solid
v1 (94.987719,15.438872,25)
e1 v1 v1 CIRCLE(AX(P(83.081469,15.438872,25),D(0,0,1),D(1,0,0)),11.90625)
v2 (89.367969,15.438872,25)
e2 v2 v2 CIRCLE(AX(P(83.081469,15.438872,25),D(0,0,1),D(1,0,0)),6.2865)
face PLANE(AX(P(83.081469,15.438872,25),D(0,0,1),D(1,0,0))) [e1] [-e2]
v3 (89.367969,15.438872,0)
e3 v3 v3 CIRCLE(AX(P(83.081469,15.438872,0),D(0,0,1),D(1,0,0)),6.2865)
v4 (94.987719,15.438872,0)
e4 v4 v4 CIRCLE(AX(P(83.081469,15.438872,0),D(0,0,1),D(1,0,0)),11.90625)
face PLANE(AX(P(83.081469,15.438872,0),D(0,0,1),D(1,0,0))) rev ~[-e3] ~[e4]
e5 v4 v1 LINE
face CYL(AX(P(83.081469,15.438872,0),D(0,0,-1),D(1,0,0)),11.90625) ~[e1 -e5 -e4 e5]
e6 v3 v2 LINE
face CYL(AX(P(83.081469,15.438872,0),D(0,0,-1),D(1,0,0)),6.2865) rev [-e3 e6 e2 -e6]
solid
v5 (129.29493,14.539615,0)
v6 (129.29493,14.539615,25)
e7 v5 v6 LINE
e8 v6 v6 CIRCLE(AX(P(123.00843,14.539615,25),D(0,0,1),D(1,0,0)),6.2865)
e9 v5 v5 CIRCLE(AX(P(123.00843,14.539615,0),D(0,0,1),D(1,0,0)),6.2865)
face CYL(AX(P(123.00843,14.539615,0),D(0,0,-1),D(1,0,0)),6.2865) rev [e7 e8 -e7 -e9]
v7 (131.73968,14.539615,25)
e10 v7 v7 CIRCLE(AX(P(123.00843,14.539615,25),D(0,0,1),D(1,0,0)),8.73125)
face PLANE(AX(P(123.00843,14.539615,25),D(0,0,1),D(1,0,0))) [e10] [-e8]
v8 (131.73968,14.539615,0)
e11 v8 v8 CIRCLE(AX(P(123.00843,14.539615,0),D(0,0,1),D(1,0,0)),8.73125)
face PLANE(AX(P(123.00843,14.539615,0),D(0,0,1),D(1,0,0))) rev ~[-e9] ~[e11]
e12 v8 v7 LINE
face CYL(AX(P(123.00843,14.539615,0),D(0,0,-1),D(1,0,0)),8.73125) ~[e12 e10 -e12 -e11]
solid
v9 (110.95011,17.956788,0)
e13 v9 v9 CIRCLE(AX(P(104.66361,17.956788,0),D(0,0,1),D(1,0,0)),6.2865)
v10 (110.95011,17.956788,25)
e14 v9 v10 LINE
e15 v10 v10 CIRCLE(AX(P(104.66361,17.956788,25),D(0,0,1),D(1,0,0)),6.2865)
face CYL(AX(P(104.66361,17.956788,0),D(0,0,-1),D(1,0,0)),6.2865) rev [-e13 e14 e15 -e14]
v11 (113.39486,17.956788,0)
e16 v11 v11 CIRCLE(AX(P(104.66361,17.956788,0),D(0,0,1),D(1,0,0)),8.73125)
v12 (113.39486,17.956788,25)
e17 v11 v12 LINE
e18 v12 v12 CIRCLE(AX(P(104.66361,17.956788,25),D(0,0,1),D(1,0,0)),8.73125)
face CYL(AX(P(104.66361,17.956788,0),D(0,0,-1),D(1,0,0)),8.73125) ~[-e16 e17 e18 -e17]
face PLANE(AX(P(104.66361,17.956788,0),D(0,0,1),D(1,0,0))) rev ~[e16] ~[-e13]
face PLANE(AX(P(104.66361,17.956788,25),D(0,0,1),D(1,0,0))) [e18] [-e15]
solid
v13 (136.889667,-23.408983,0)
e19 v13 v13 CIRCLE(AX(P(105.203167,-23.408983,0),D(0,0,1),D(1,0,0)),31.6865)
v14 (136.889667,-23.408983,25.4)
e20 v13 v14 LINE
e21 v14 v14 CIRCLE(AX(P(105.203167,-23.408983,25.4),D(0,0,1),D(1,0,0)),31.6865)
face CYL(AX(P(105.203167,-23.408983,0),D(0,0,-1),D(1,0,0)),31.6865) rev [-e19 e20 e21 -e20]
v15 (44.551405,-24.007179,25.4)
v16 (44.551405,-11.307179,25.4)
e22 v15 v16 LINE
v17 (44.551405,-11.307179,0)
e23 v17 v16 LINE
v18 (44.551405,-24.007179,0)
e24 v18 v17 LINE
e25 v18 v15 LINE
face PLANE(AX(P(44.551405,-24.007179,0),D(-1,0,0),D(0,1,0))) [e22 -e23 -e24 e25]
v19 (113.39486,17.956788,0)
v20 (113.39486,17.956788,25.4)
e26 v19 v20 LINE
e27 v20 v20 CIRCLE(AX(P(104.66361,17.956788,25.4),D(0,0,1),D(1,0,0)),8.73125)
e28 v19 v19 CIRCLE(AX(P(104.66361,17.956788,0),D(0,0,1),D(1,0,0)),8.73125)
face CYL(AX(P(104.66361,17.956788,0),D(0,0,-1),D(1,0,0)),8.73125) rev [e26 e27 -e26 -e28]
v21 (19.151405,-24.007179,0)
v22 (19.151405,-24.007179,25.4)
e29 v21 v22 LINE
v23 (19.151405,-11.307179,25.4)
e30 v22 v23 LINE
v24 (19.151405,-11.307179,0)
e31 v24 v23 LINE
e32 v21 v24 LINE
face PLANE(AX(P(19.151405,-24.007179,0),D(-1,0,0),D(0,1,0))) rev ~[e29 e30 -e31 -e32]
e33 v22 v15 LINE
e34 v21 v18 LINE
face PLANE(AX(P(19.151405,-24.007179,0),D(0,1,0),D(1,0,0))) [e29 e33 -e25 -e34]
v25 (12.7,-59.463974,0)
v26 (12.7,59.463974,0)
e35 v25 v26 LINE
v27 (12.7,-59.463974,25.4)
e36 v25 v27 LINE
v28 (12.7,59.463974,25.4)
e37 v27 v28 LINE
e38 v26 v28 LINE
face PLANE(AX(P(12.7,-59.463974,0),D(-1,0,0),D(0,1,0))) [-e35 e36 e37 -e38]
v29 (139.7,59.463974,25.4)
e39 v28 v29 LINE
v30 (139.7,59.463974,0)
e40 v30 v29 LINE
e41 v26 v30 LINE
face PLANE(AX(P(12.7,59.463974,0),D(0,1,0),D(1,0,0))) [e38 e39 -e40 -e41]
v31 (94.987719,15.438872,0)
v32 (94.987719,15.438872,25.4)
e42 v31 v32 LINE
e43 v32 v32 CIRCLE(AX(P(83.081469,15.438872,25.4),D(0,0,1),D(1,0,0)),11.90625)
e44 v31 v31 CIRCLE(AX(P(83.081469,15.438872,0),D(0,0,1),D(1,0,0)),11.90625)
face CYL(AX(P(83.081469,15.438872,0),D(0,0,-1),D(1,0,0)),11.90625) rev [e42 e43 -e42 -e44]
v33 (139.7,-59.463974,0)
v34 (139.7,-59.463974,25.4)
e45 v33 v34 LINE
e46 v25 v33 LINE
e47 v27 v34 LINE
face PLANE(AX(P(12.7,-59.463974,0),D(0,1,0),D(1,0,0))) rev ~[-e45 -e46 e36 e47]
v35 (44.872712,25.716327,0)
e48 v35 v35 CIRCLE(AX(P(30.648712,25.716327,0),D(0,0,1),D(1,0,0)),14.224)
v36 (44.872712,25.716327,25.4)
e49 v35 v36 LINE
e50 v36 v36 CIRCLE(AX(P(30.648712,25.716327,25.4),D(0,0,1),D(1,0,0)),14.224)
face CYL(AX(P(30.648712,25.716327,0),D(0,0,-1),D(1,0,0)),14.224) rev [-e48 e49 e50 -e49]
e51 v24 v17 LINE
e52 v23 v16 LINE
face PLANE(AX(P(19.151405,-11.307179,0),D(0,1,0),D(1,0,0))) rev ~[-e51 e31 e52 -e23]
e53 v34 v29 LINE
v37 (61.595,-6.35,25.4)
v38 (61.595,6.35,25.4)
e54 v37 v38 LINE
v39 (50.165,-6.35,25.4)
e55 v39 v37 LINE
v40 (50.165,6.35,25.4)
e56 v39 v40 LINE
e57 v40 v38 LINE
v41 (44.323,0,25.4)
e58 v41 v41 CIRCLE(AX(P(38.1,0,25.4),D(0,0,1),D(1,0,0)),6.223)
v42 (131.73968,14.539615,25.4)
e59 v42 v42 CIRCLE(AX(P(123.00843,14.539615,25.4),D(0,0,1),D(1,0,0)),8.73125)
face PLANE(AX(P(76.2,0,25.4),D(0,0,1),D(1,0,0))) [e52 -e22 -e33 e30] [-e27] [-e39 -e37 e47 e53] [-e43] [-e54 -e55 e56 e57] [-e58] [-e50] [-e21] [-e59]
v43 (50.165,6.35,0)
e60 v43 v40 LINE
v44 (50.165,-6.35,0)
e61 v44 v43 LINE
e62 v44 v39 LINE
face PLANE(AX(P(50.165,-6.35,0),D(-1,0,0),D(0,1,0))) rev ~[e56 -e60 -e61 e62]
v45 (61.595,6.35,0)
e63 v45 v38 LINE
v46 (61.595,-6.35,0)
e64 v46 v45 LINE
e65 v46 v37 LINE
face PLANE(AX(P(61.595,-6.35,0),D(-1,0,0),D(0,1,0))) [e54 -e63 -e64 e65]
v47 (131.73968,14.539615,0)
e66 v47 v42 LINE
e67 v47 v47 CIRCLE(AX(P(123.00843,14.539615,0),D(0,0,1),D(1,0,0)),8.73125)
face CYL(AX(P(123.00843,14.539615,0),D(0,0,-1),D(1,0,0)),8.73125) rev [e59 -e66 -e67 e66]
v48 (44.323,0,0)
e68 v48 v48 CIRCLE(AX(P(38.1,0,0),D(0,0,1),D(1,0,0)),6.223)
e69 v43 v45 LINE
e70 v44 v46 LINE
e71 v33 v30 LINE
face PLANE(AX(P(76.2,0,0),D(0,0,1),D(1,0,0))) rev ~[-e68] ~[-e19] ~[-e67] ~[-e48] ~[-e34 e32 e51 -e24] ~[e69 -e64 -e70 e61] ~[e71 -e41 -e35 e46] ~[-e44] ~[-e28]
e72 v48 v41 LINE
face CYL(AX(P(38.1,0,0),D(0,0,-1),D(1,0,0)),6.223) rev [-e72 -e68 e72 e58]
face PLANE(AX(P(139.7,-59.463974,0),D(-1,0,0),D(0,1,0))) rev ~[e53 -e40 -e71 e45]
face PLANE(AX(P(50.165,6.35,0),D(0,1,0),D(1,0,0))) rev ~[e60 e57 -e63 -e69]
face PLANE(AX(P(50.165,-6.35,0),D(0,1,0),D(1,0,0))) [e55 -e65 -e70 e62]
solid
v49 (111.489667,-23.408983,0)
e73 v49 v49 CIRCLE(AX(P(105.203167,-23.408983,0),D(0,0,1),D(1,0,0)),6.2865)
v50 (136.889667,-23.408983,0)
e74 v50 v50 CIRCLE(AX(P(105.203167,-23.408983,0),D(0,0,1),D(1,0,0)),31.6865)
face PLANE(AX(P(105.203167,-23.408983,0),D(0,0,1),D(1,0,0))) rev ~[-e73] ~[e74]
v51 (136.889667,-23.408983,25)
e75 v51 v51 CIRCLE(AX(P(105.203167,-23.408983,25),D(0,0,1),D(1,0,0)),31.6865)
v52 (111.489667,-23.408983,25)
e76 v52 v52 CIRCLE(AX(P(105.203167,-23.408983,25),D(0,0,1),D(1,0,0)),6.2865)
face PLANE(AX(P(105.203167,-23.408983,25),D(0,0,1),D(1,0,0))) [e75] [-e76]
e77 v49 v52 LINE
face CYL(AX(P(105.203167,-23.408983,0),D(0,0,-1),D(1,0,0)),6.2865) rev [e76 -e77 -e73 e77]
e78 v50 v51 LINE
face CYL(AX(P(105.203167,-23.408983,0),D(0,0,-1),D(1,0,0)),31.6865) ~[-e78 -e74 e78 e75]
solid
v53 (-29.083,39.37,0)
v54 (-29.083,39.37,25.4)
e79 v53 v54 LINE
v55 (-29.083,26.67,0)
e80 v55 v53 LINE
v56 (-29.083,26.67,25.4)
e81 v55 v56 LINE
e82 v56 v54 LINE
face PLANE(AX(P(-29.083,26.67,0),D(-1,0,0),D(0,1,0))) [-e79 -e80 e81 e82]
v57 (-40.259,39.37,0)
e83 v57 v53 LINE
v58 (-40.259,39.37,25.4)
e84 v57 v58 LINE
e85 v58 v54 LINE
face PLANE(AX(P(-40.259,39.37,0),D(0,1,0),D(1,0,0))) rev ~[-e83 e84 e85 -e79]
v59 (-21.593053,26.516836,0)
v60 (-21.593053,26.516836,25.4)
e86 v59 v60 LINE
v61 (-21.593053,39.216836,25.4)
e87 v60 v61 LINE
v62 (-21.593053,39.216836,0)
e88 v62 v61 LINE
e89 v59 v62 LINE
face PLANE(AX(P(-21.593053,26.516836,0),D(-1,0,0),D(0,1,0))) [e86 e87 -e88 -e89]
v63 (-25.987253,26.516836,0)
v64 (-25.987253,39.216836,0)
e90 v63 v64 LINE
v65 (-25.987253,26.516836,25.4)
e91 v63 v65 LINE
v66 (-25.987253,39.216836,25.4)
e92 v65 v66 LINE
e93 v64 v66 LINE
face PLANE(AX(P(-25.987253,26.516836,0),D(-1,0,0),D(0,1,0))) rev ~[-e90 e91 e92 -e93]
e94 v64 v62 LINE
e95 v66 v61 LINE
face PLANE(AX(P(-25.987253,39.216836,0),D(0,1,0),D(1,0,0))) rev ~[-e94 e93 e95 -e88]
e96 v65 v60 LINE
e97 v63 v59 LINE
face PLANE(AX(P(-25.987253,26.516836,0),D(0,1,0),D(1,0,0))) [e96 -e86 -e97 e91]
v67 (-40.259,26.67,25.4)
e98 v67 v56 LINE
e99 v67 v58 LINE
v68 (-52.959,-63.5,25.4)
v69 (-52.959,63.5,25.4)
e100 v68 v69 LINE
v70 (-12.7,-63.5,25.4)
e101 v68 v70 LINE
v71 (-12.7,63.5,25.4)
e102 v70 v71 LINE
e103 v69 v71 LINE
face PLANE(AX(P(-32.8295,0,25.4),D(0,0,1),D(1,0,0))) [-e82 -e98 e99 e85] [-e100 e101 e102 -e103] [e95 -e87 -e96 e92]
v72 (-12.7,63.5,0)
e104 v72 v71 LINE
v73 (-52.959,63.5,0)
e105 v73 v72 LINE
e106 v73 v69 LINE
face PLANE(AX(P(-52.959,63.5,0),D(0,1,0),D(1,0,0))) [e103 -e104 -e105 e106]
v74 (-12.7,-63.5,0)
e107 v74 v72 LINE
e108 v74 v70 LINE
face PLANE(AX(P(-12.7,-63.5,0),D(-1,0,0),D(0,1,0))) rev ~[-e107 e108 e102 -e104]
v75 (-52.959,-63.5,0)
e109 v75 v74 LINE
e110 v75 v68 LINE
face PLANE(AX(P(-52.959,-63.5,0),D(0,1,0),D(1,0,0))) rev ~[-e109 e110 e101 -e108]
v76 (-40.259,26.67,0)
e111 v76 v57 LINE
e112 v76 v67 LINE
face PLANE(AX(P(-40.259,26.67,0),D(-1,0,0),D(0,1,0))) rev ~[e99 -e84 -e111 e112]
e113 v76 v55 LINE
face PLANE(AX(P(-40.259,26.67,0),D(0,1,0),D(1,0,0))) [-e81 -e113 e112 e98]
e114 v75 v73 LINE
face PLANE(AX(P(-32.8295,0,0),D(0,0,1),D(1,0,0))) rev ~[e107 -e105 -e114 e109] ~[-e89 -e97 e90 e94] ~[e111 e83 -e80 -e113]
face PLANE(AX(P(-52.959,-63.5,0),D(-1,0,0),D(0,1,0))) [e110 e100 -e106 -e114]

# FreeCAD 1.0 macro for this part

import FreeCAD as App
import Part
import Sketcher

V = App.Vector
Q = App.Units.Quantity

doc = App.newDocument("Part")
body = doc.addObject("PartDesign::Body", "Body")
body.AllowCompound = True

# Sketch on XY plane
sketch1 = doc.addObject("Sketcher::SketchObject", "Sketch")
body.addObject(sketch1)
sketch1.AttachmentSupport = (doc.XY_Plane, [""])
sketch1.MapMode = "FlatFace"
sketch1.addGeometry([
    Part.LineSegment(V(-53, 63.5, 0), V(-53, -63.5, 0)),  # 0
    Part.LineSegment(V(-53, -63.5, 0), V(-12.7, -63.5, 0)),  # 1
    Part.LineSegment(V(-12.7, -63.5, 0), V(-12.7, 63.5, 0)),  # 2
    Part.LineSegment(V(-12.7, 63.5, 0), V(-53, 63.5, 0)),  # 3
    Part.LineSegment(V(-21.6, 26.5, 0), V(-26, 26.5, 0)),  # 4
    Part.LineSegment(V(-26, 26.5, 0), V(-26, 39.2, 0)),  # 5
    Part.LineSegment(V(-26, 39.2, 0), V(-21.6, 39.2, 0)),  # 6
    Part.LineSegment(V(-21.6, 39.2, 0), V(-21.6, 26.5, 0)),  # 7
    Part.LineSegment(V(-29.1, 26.7, 0), V(-40.3, 26.7, 0)),  # 8
    Part.LineSegment(V(-40.3, 26.7, 0), V(-40.3, 39.4, 0)),  # 9
    Part.LineSegment(V(-40.3, 39.4, 0), V(-29.1, 39.4, 0)),  # 10
    Part.LineSegment(V(-29.1, 39.4, 0), V(-29.1, 26.7, 0)),  # 11
    Part.LineSegment(V(12.7, 59.5, 0), V(12.7, -59.5, 0)),  # 12
    Part.LineSegment(V(12.7, -59.5, 0), V(139.7, -59.5, 0)),  # 13
    Part.LineSegment(V(139.7, -59.5, 0), V(139.7, 59.5, 0)),  # 14
    Part.LineSegment(V(139.7, 59.5, 0), V(12.7, 59.5, 0)),  # 15
    Part.LineSegment(V(44.6, -24, 0), V(19.2, -24, 0)),  # 16
    Part.LineSegment(V(19.2, -24, 0), V(19.2, -11.3, 0)),  # 17
    Part.LineSegment(V(19.2, -11.3, 0), V(44.6, -11.3, 0)),  # 18
    Part.LineSegment(V(44.6, -11.3, 0), V(44.6, -24, 0)),  # 19
    Part.Circle(V(105.2, -23.4, 0), V(0, 0, 1), 31.7),  # 20
    Part.Circle(V(38.1, 0, 0), V(0, 0, 1), 6.2),  # 21
    Part.LineSegment(V(61.6, -6.3, 0), V(50.2, -6.3, 0)),  # 22
    Part.LineSegment(V(50.2, -6.3, 0), V(50.2, 6.3, 0)),  # 23
    Part.LineSegment(V(50.2, 6.3, 0), V(61.6, 6.3, 0)),  # 24
    Part.LineSegment(V(61.6, 6.3, 0), V(61.6, -6.3, 0)),  # 25
    Part.Circle(V(30.6, 25.7, 0), V(0, 0, 1), 14.2),  # 26
    Part.Circle(V(83.1, 15.4, 0), V(0, 0, 1), 11.9),  # 27
    Part.Circle(V(123, 14.5, 0), V(0, 0, 1), 8.7),  # 28
    Part.Circle(V(104.7, 18, 0), V(0, 0, 1), 8.7),  # 29
], False)
sketch1.addConstraint([
    Sketcher.Constraint("Coincident", 0, 2, 1, 1),
    Sketcher.Constraint("Coincident", 1, 2, 2, 1),
    Sketcher.Constraint("Coincident", 2, 2, 3, 1),
    Sketcher.Constraint("Coincident", 3, 2, 0, 1),
    Sketcher.Constraint("Coincident", 4, 2, 5, 1),
    Sketcher.Constraint("Coincident", 5, 2, 6, 1),
    Sketcher.Constraint("Coincident", 6, 2, 7, 1),
    Sketcher.Constraint("Coincident", 7, 2, 4, 1),
    Sketcher.Constraint("Coincident", 8, 2, 9, 1),
    Sketcher.Constraint("Coincident", 9, 2, 10, 1),
    Sketcher.Constraint("Coincident", 10, 2, 11, 1),
    Sketcher.Constraint("Coincident", 11, 2, 8, 1),
    Sketcher.Constraint("Coincident", 12, 2, 13, 1),
    Sketcher.Constraint("Coincident", 13, 2, 14, 1),
    Sketcher.Constraint("Coincident", 14, 2, 15, 1),
    Sketcher.Constraint("Coincident", 15, 2, 12, 1),
    Sketcher.Constraint("Coincident", 16, 2, 17, 1),
    Sketcher.Constraint("Coincident", 17, 2, 18, 1),
    Sketcher.Constraint("Coincident", 18, 2, 19, 1),
    Sketcher.Constraint("Coincident", 19, 2, 16, 1),
    Sketcher.Constraint("Coincident", 22, 2, 23, 1),
    Sketcher.Constraint("Coincident", 23, 2, 24, 1),
    Sketcher.Constraint("Coincident", 24, 2, 25, 1),
    Sketcher.Constraint("Coincident", 25, 2, 22, 1),
    Sketcher.Constraint("Vertical", 0),
    Sketcher.Constraint("Horizontal", 1),
    Sketcher.Constraint("Vertical", 2),
    Sketcher.Constraint("Horizontal", 3),
    Sketcher.Constraint("Horizontal", 4),
    Sketcher.Constraint("Vertical", 5),
    Sketcher.Constraint("Horizontal", 6),
    Sketcher.Constraint("Vertical", 7),
    Sketcher.Constraint("Horizontal", 8),
    Sketcher.Constraint("Vertical", 9),
    Sketcher.Constraint("Horizontal", 10),
    Sketcher.Constraint("Vertical", 11),
    Sketcher.Constraint("Vertical", 12),
    Sketcher.Constraint("Horizontal", 13),
    Sketcher.Constraint("Vertical", 14),
    Sketcher.Constraint("Horizontal", 15),
    Sketcher.Constraint("Horizontal", 16),
    Sketcher.Constraint("Vertical", 17),
    Sketcher.Constraint("Horizontal", 18),
    Sketcher.Constraint("Vertical", 19),
    Sketcher.Constraint("Horizontal", 22),
    Sketcher.Constraint("Vertical", 23),
    Sketcher.Constraint("Horizontal", 24),
    Sketcher.Constraint("Vertical", 25),
    Sketcher.Constraint("Equal", 28, 29),
    Sketcher.Constraint("PointOnObject", 21, 3, -1),
    Sketcher.Constraint("Equal", 15, 0),
    Sketcher.Constraint("Equal", 7, 9),
    Sketcher.Constraint("Equal", 11, 17),
    Sketcher.Constraint("Equal", 19, 23),
    Sketcher.Constraint("Diameter", 21, Q("0.49 in")),
    Sketcher.Constraint("Diameter", 26, Q("1.12 in")),
    Sketcher.Constraint("DistanceX", 13, 1, 13, 2, Q("5 in")),
    Sketcher.Constraint("DistanceX", 16, 2, 16, 1, Q("1 in")),
    Sketcher.Constraint("Diameter", 20, Q("2.495 in")),
    Sketcher.Constraint("Diameter", 27, Q("0.9375 in")),
    Sketcher.Constraint("Diameter", 28, Q("0.6875 in")),
    Sketcher.Constraint("DistanceY", 5, 1, 5, 2, Q("0.5 in")),
    Sketcher.Constraint("DistanceX", 1, 2, 21, 3, Q("2 in")),
    Sketcher.Constraint("DistanceX", 1, 2, 12, 2, Q("1 in")),
    Sketcher.Constraint("DistanceX", 8, 2, 8, 1, Q("0.44 in")),
    Sketcher.Constraint("DistanceX", 22, 2, 22, 1, Q("0.45 in")),
    Sketcher.Constraint("DistanceX", -1, 1, 21, 3, Q("1.5 in")),
    Sketcher.Constraint("DistanceY", 0, 2, -1, 1, Q("2.5 in")),
    Sketcher.Constraint("DistanceX", 3, 2, 8, 2, Q("0.5 in")),
    Sketcher.Constraint("DistanceX", 1, 1, 1, 2, Q("1.585 in")),
    Sketcher.Constraint("DistanceX", 4, 2, 4, 1, Q("0.173 in")),
    Sketcher.Constraint("DistanceY", -1, 1, 8, 2, Q("1.05 in")),
    Sketcher.Constraint("DistanceY", 22, 2, -1, 1, Q("0.25 in")),
    Sketcher.Constraint("DistanceX", -1, 1, 22, 2, Q("1.975 in")),
    Sketcher.Constraint("DistanceY", 12, 2, 12, 1, Q("118.927948 mm")),
    Sketcher.Constraint("DistanceX", 26, 3, 29, 3, Q("74.014898 mm")),
    Sketcher.Constraint("DistanceY", 12, 2, 26, 3, Q("85.180301 mm")),
    Sketcher.Constraint("DistanceX", -1, 1, 26, 3, Q("30.648712 mm")),
    Sketcher.Constraint("DistanceX", -1, 1, 27, 3, Q("83.081469 mm")),
    Sketcher.Constraint("DistanceX", -1, 1, 28, 3, Q("123.00843 mm")),
    Sketcher.Constraint("DistanceY", 16, 2, -1, 1, Q("24.007179 mm")),
    Sketcher.Constraint("DistanceY", 20, 3, 26, 3, Q("49.12531 mm")),
    Sketcher.Constraint("DistanceY", 20, 3, 29, 3, Q("41.365771 mm")),
    Sketcher.Constraint("DistanceY", 0, 2, 29, 3, Q("81.456788 mm")),
    Sketcher.Constraint("DistanceY", 26, 3, 4, 2, Q("0.800509 mm")),
    Sketcher.Constraint("DistanceY", 13, 2, 28, 3, Q("74.003589 mm")),
    Sketcher.Constraint("DistanceX", 7, 2, 16, 2, Q("40.744458 mm")),
    Sketcher.Constraint("DistanceY", 18, 2, 27, 3, Q("26.746051 mm")),
    Sketcher.Constraint("DistanceX", -1, 1, 20, 3, Q("105.203167 mm")),
    Sketcher.Constraint("DistanceX", 4, 2, -1, 1, Q("25.987253 mm")),
])
pad1 = doc.addObject("PartDesign::Pad", "Pad")
body.addObject(pad1)
pad1.Profile = sketch1
pad1.Length = Q("1 in")
body2 = doc.addObject("PartDesign::Body", "Body001")
body2.AllowCompound = True

# Sketch on XY plane
sketch2 = doc.addObject("Sketcher::SketchObject", "Sketch001")
body2.addObject(sketch2)
sketch2.AttachmentSupport = (doc.getObject("XY_Plane001"), [""])
sketch2.MapMode = "FlatFace"
sketch2.addGeometry([
    Part.Circle(V(105, -23, 0), V(0, 0, 1), 32),  # 0
    Part.Circle(V(105, -23, 0), V(0, 0, 1), 6),  # 1
    Part.Circle(V(83, 15, 0), V(0, 0, 1), 12),  # 2
    Part.Circle(V(83, 15, 0), V(0, 0, 1), 6),  # 3
    Part.Circle(V(105, 18, 0), V(0, 0, 1), 9),  # 4
    Part.Circle(V(105, 18, 0), V(0, 0, 1), 6),  # 5
    Part.Circle(V(123, 15, 0), V(0, 0, 1), 9),  # 6
    Part.Circle(V(123, 15, 0), V(0, 0, 1), 6),  # 7
], False)
sketch2.addConstraint([
    Sketcher.Constraint("Coincident", 1, 3, 0, 3),
    Sketcher.Constraint("Coincident", 3, 3, 2, 3),
    Sketcher.Constraint("Coincident", 5, 3, 4, 3),
    Sketcher.Constraint("Coincident", 7, 3, 6, 3),
    Sketcher.Constraint("Equal", 1, 3),
    Sketcher.Constraint("Equal", 3, 5),
    Sketcher.Constraint("Equal", 4, 6),
    Sketcher.Constraint("Equal", 5, 7),
    Sketcher.Constraint("Diameter", 0, Q("2.495 in")),
    Sketcher.Constraint("Diameter", 1, Q("0.495 in")),
    Sketcher.Constraint("Diameter", 2, Q("0.9375 in")),
    Sketcher.Constraint("Diameter", 4, Q("0.6875 in")),
    Sketcher.Constraint("DistanceX", -1, 1, 2, 3, Q("83.081469 mm")),
    Sketcher.Constraint("DistanceX", -1, 1, 4, 3, Q("104.66361 mm")),
    Sketcher.Constraint("DistanceX", -1, 1, 6, 3, Q("123.00843 mm")),
    Sketcher.Constraint("DistanceY", 0, 3, 4, 3, Q("41.365771 mm")),
    Sketcher.Constraint("DistanceX", -1, 1, 0, 3, Q("105.203167 mm")),
    Sketcher.Constraint("DistanceY", 0, 3, -1, 1, Q("23.408983 mm")),
    Sketcher.Constraint("DistanceY", -1, 1, 2, 3, Q("15.438872 mm")),
    Sketcher.Constraint("DistanceY", -1, 1, 6, 3, Q("14.539615 mm")),
])
pad2 = doc.addObject("PartDesign::Pad", "Pad001")
body2.addObject(pad2)
pad2.Profile = sketch2
pad2.Length = 25

doc.recompute()
